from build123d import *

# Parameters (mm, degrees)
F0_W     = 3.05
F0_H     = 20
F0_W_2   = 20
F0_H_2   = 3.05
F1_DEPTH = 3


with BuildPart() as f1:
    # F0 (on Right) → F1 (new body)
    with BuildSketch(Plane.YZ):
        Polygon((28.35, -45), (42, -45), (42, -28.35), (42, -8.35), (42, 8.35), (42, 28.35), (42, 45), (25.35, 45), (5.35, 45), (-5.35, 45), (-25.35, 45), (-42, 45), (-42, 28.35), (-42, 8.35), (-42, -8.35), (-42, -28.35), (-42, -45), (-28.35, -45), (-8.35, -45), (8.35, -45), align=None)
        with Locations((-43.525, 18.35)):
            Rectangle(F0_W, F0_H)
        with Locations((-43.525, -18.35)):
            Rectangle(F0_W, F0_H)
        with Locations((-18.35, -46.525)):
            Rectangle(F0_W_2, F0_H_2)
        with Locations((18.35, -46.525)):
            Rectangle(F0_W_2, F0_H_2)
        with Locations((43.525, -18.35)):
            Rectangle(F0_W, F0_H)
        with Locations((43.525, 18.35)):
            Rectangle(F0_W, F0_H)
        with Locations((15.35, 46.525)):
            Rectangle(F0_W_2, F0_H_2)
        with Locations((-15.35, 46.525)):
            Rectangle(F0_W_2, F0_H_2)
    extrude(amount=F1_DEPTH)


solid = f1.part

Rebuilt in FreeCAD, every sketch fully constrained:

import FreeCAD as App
import Part
import Sketcher

V = App.Vector

doc = App.newDocument("Part")
body = doc.addObject("PartDesign::Body", "Body")

# Sketch on YZ plane
sketch1 = body.newObject("Sketcher::SketchObject", "Sketch")
sketch1.AttachmentSupport = (doc.getObject("YZ_Plane"), [""])
sketch1.MapMode = "FlatFace"
sketch1.addGeometry(Part.LineSegment(V(42, -45, 0), V(42, -28.35, 0)), False)
sketch1.addGeometry(Part.LineSegment(V(42, -28.35, 0), V(45.05, -28.35, 0)), False)
sketch1.addGeometry(Part.LineSegment(V(45.05, -28.35, 0), V(45.05, -8.35, 0)), False)
sketch1.addGeometry(Part.LineSegment(V(45.05, -8.35, 0), V(42, -8.35, 0)), False)
sketch1.addGeometry(Part.LineSegment(V(42, -8.35, 0), V(42, 8.35, 0)), False)
sketch1.addGeometry(Part.LineSegment(V(42, 8.35, 0), V(45.05, 8.35, 0)), False)
sketch1.addGeometry(Part.LineSegment(V(45.05, 8.35, 0), V(45.05, 28.35, 0)), False)
sketch1.addGeometry(Part.LineSegment(V(45.05, 28.35, 0), V(42, 28.35, 0)), False)
sketch1.addGeometry(Part.LineSegment(V(42, 28.35, 0), V(42, 45, 0)), False)
sketch1.addGeometry(Part.LineSegment(V(42, 45, 0), V(25.35, 45, 0)), False)
sketch1.addGeometry(Part.LineSegment(V(25.35, 45, 0), V(25.35, 48.05, 0)), False)
sketch1.addGeometry(Part.LineSegment(V(25.35, 48.05, 0), V(5.35, 48.05, 0)), False)
sketch1.addGeometry(Part.LineSegment(V(5.35, 48.05, 0), V(5.35, 45, 0)), False)
sketch1.addGeometry(Part.LineSegment(V(5.35, 45, 0), V(-5.35, 45, 0)), False)
sketch1.addGeometry(Part.LineSegment(V(-5.35, 45, 0), V(-5.35, 48.05, 0)), False)
sketch1.addGeometry(Part.LineSegment(V(-5.35, 48.05, 0), V(-25.35, 48.05, 0)), False)
sketch1.addGeometry(Part.LineSegment(V(-25.35, 48.05, 0), V(-25.35, 45, 0)), False)
sketch1.addGeometry(Part.LineSegment(V(-25.35, 45, 0), V(-42, 45, 0)), False)
sketch1.addGeometry(Part.LineSegment(V(-42, 45, 0), V(-42, 28.35, 0)), False)
sketch1.addGeometry(Part.LineSegment(V(-42, 28.35, 0), V(-45.05, 28.35, 0)), False)
sketch1.addGeometry(Part.LineSegment(V(-45.05, 28.35, 0), V(-45.05, 8.35, 0)), False)
sketch1.addGeometry(Part.LineSegment(V(-45.05, 8.35, 0), V(-42, 8.35, 0)), False)
sketch1.addGeometry(Part.LineSegment(V(-42, 8.35, 0), V(-42, -8.35, 0)), False)
sketch1.addGeometry(Part.LineSegment(V(-42, -8.35, 0), V(-45.05, -8.35, 0)), False)
sketch1.addGeometry(Part.LineSegment(V(-45.05, -8.35, 0), V(-45.05, -28.35, 0)), False)
sketch1.addGeometry(Part.LineSegment(V(-45.05, -28.35, 0), V(-42, -28.35, 0)), False)
sketch1.addGeometry(Part.LineSegment(V(-42, -28.35, 0), V(-42, -45, 0)), False)
sketch1.addGeometry(Part.LineSegment(V(-42, -45, 0), V(-28.35, -45, 0)), False)
sketch1.addGeometry(Part.LineSegment(V(-28.35, -45, 0), V(-28.35, -48.05, 0)), False)
sketch1.addGeometry(Part.LineSegment(V(-28.35, -48.05, 0), V(-8.35, -48.05, 0)), False)
sketch1.addGeometry(Part.LineSegment(V(-8.35, -48.05, 0), V(-8.35, -45, 0)), False)
sketch1.addGeometry(Part.LineSegment(V(-8.35, -45, 0), V(8.35, -45, 0)), False)
sketch1.addGeometry(Part.LineSegment(V(8.35, -45, 0), V(8.35, -48.05, 0)), False)
sketch1.addGeometry(Part.LineSegment(V(8.35, -48.05, 0), V(28.35, -48.05, 0)), False)
sketch1.addGeometry(Part.LineSegment(V(28.35, -48.05, 0), V(28.35, -45, 0)), False)
sketch1.addGeometry(Part.LineSegment(V(28.35, -45, 0), V(42, -45, 0)), False)
sketch1.addConstraint(Sketcher.Constraint("Coincident", 0, 2, 1, 1))
sketch1.addConstraint(Sketcher.Constraint("Coincident", 1, 2, 2, 1))
sketch1.addConstraint(Sketcher.Constraint("Coincident", 2, 2, 3, 1))
sketch1.addConstraint(Sketcher.Constraint("Coincident", 3, 2, 4, 1))
sketch1.addConstraint(Sketcher.Constraint("Coincident", 4, 2, 5, 1))
sketch1.addConstraint(Sketcher.Constraint("Coincident", 5, 2, 6, 1))
sketch1.addConstraint(Sketcher.Constraint("Coincident", 6, 2, 7, 1))
sketch1.addConstraint(Sketcher.Constraint("Coincident", 7, 2, 8, 1))
sketch1.addConstraint(Sketcher.Constraint("Coincident", 8, 2, 9, 1))
sketch1.addConstraint(Sketcher.Constraint("Coincident", 9, 2, 10, 1))
sketch1.addConstraint(Sketcher.Constraint("Coincident", 10, 2, 11, 1))
sketch1.addConstraint(Sketcher.Constraint("Coincident", 11, 2, 12, 1))
sketch1.addConstraint(Sketcher.Constraint("Coincident", 12, 2, 13, 1))
sketch1.addConstraint(Sketcher.Constraint("Coincident", 13, 2, 14, 1))
sketch1.addConstraint(Sketcher.Constraint("Coincident", 14, 2, 15, 1))
sketch1.addConstraint(Sketcher.Constraint("Coincident", 15, 2, 16, 1))
sketch1.addConstraint(Sketcher.Constraint("Coincident", 16, 2, 17, 1))
sketch1.addConstraint(Sketcher.Constraint("Coincident", 17, 2, 18, 1))
sketch1.addConstraint(Sketcher.Constraint("Coincident", 18, 2, 19, 1))
sketch1.addConstraint(Sketcher.Constraint("Coincident", 19, 2, 20, 1))
sketch1.addConstraint(Sketcher.Constraint("Coincident", 20, 2, 21, 1))
sketch1.addConstraint(Sketcher.Constraint("Coincident", 21, 2, 22, 1))
sketch1.addConstraint(Sketcher.Constraint("Coincident", 22, 2, 23, 1))
sketch1.addConstraint(Sketcher.Constraint("Coincident", 23, 2, 24, 1))
sketch1.addConstraint(Sketcher.Constraint("Coincident", 24, 2, 25, 1))
sketch1.addConstraint(Sketcher.Constraint("Coincident", 25, 2, 26, 1))
sketch1.addConstraint(Sketcher.Constraint("Coincident", 26, 2, 27, 1))
sketch1.addConstraint(Sketcher.Constraint("Coincident", 27, 2, 28, 1))
sketch1.addConstraint(Sketcher.Constraint("Coincident", 28, 2, 29, 1))
sketch1.addConstraint(Sketcher.Constraint("Coincident", 29, 2, 30, 1))
sketch1.addConstraint(Sketcher.Constraint("Coincident", 30, 2, 31, 1))
sketch1.addConstraint(Sketcher.Constraint("Coincident", 31, 2, 32, 1))
sketch1.addConstraint(Sketcher.Constraint("Coincident", 32, 2, 33, 1))
sketch1.addConstraint(Sketcher.Constraint("Coincident", 33, 2, 34, 1))
sketch1.addConstraint(Sketcher.Constraint("Coincident", 34, 2, 35, 1))
sketch1.addConstraint(Sketcher.Constraint("Coincident", 35, 2, 0, 1))
sketch1.addConstraint(Sketcher.Constraint("Vertical", 0))
sketch1.addConstraint(Sketcher.Constraint("Horizontal", 1))
sketch1.addConstraint(Sketcher.Constraint("Vertical", 2))
sketch1.addConstraint(Sketcher.Constraint("Horizontal", 3))
sketch1.addConstraint(Sketcher.Constraint("Vertical", 4))
sketch1.addConstraint(Sketcher.Constraint("Horizontal", 5))
sketch1.addConstraint(Sketcher.Constraint("Vertical", 6))
sketch1.addConstraint(Sketcher.Constraint("Horizontal", 7))
sketch1.addConstraint(Sketcher.Constraint("Vertical", 8))
sketch1.addConstraint(Sketcher.Constraint("Horizontal", 9))
sketch1.addConstraint(Sketcher.Constraint("Vertical", 10))
sketch1.addConstraint(Sketcher.Constraint("Horizontal", 11))
sketch1.addConstraint(Sketcher.Constraint("Vertical", 12))
sketch1.addConstraint(Sketcher.Constraint("Horizontal", 13))
sketch1.addConstraint(Sketcher.Constraint("Vertical", 14))
sketch1.addConstraint(Sketcher.Constraint("Horizontal", 15))
sketch1.addConstraint(Sketcher.Constraint("Vertical", 16))
sketch1.addConstraint(Sketcher.Constraint("Horizontal", 17))
sketch1.addConstraint(Sketcher.Constraint("Vertical", 18))
sketch1.addConstraint(Sketcher.Constraint("Horizontal", 19))
sketch1.addConstraint(Sketcher.Constraint("Vertical", 20))
sketch1.addConstraint(Sketcher.Constraint("Horizontal", 21))
sketch1.addConstraint(Sketcher.Constraint("Vertical", 22))
sketch1.addConstraint(Sketcher.Constraint("Horizontal", 23))
sketch1.addConstraint(Sketcher.Constraint("Vertical", 24))
sketch1.addConstraint(Sketcher.Constraint("Horizontal", 25))
sketch1.addConstraint(Sketcher.Constraint("Vertical", 26))
sketch1.addConstraint(Sketcher.Constraint("Horizontal", 27))
sketch1.addConstraint(Sketcher.Constraint("Vertical", 28))
sketch1.addConstraint(Sketcher.Constraint("Horizontal", 29))
sketch1.addConstraint(Sketcher.Constraint("Vertical", 30))
sketch1.addConstraint(Sketcher.Constraint("Horizontal", 31))
sketch1.addConstraint(Sketcher.Constraint("Vertical", 32))
sketch1.addConstraint(Sketcher.Constraint("Horizontal", 33))
sketch1.addConstraint(Sketcher.Constraint("Vertical", 34))
sketch1.addConstraint(Sketcher.Constraint("Horizontal", 35))
sketch1.addConstraint(Sketcher.Constraint("Symmetric", 0, 2, 18, 2, -1, 1))
sketch1.addConstraint(Sketcher.Constraint("Symmetric", 2, 2, 20, 2, -1, 1))
sketch1.addConstraint(Sketcher.Constraint("Symmetric", 4, 2, 22, 2, -1, 1))
sketch1.addConstraint(Sketcher.Constraint("Symmetric", 6, 2, 24, 2, -1, 1))
sketch1.addConstraint(Sketcher.Constraint("Symmetric", 8, 2, 26, 2, -1, 1))
sketch1.addConstraint(Sketcher.Constraint("Symmetric", 11, 2, 14, 2, -2))
sketch1.addConstraint(Sketcher.Constraint("Symmetric", 9, 2, 16, 2, -2))
sketch1.addConstraint(Sketcher.Constraint("Symmetric", 7, 2, 18, 2, -2))
sketch1.addConstraint(Sketcher.Constraint("Symmetric", 5, 2, 20, 2, -2))
sketch1.addConstraint(Sketcher.Constraint("Symmetric", 29, 2, 32, 2, -2))
sketch1.addConstraint(Sketcher.Constraint("Symmetric", 27, 2, 34, 2, -2))
sketch1.addConstraint(Sketcher.Constraint("Horizontal", 9, 2, 12, 2))
sketch1.addConstraint(Sketcher.Constraint("Horizontal", 27, 2, 30, 2))
sketch1.addConstraint(Sketcher.Constraint("Vertical", 0, 2, 3, 2))
sketch1.addConstraint(Sketcher.Constraint("Equal", 15, 29))
sketch1.addConstraint(Sketcher.Constraint("Equal", 17, 0))
sketch1.addConstraint(Sketcher.Constraint("Equal", 33, 2))
sketch1.addConstraint(Sketcher.Constraint("Equal", 31, 4))
sketch1.addConstraint(Sketcher.Constraint("Equal", 25, 10))
sketch1.addConstraint(Sketcher.Constraint("Equal", 16, 28))
sketch1.addConstraint(Sketcher.Constraint("DistanceX", 11, 2, 11, 1, 20.0))
sketch1.addConstraint(Sketcher.Constraint("DistanceX", 13, 2, 13, 1, 10.7))
sketch1.addConstraint(Sketcher.Constraint("DistanceX", 31, 1, 31, 2, 16.7))
sketch1.addConstraint(Sketcher.Constraint("DistanceX", -1, 1, 0, 2, 42.0))
sketch1.addConstraint(Sketcher.Constraint("DistanceX", 1, 1, 1, 2, 3.05))
pad1 = body.newObject("PartDesign::Pad", "Pad")
pad1.Profile = sketch1
pad1.Length = 3

doc.recompute()
